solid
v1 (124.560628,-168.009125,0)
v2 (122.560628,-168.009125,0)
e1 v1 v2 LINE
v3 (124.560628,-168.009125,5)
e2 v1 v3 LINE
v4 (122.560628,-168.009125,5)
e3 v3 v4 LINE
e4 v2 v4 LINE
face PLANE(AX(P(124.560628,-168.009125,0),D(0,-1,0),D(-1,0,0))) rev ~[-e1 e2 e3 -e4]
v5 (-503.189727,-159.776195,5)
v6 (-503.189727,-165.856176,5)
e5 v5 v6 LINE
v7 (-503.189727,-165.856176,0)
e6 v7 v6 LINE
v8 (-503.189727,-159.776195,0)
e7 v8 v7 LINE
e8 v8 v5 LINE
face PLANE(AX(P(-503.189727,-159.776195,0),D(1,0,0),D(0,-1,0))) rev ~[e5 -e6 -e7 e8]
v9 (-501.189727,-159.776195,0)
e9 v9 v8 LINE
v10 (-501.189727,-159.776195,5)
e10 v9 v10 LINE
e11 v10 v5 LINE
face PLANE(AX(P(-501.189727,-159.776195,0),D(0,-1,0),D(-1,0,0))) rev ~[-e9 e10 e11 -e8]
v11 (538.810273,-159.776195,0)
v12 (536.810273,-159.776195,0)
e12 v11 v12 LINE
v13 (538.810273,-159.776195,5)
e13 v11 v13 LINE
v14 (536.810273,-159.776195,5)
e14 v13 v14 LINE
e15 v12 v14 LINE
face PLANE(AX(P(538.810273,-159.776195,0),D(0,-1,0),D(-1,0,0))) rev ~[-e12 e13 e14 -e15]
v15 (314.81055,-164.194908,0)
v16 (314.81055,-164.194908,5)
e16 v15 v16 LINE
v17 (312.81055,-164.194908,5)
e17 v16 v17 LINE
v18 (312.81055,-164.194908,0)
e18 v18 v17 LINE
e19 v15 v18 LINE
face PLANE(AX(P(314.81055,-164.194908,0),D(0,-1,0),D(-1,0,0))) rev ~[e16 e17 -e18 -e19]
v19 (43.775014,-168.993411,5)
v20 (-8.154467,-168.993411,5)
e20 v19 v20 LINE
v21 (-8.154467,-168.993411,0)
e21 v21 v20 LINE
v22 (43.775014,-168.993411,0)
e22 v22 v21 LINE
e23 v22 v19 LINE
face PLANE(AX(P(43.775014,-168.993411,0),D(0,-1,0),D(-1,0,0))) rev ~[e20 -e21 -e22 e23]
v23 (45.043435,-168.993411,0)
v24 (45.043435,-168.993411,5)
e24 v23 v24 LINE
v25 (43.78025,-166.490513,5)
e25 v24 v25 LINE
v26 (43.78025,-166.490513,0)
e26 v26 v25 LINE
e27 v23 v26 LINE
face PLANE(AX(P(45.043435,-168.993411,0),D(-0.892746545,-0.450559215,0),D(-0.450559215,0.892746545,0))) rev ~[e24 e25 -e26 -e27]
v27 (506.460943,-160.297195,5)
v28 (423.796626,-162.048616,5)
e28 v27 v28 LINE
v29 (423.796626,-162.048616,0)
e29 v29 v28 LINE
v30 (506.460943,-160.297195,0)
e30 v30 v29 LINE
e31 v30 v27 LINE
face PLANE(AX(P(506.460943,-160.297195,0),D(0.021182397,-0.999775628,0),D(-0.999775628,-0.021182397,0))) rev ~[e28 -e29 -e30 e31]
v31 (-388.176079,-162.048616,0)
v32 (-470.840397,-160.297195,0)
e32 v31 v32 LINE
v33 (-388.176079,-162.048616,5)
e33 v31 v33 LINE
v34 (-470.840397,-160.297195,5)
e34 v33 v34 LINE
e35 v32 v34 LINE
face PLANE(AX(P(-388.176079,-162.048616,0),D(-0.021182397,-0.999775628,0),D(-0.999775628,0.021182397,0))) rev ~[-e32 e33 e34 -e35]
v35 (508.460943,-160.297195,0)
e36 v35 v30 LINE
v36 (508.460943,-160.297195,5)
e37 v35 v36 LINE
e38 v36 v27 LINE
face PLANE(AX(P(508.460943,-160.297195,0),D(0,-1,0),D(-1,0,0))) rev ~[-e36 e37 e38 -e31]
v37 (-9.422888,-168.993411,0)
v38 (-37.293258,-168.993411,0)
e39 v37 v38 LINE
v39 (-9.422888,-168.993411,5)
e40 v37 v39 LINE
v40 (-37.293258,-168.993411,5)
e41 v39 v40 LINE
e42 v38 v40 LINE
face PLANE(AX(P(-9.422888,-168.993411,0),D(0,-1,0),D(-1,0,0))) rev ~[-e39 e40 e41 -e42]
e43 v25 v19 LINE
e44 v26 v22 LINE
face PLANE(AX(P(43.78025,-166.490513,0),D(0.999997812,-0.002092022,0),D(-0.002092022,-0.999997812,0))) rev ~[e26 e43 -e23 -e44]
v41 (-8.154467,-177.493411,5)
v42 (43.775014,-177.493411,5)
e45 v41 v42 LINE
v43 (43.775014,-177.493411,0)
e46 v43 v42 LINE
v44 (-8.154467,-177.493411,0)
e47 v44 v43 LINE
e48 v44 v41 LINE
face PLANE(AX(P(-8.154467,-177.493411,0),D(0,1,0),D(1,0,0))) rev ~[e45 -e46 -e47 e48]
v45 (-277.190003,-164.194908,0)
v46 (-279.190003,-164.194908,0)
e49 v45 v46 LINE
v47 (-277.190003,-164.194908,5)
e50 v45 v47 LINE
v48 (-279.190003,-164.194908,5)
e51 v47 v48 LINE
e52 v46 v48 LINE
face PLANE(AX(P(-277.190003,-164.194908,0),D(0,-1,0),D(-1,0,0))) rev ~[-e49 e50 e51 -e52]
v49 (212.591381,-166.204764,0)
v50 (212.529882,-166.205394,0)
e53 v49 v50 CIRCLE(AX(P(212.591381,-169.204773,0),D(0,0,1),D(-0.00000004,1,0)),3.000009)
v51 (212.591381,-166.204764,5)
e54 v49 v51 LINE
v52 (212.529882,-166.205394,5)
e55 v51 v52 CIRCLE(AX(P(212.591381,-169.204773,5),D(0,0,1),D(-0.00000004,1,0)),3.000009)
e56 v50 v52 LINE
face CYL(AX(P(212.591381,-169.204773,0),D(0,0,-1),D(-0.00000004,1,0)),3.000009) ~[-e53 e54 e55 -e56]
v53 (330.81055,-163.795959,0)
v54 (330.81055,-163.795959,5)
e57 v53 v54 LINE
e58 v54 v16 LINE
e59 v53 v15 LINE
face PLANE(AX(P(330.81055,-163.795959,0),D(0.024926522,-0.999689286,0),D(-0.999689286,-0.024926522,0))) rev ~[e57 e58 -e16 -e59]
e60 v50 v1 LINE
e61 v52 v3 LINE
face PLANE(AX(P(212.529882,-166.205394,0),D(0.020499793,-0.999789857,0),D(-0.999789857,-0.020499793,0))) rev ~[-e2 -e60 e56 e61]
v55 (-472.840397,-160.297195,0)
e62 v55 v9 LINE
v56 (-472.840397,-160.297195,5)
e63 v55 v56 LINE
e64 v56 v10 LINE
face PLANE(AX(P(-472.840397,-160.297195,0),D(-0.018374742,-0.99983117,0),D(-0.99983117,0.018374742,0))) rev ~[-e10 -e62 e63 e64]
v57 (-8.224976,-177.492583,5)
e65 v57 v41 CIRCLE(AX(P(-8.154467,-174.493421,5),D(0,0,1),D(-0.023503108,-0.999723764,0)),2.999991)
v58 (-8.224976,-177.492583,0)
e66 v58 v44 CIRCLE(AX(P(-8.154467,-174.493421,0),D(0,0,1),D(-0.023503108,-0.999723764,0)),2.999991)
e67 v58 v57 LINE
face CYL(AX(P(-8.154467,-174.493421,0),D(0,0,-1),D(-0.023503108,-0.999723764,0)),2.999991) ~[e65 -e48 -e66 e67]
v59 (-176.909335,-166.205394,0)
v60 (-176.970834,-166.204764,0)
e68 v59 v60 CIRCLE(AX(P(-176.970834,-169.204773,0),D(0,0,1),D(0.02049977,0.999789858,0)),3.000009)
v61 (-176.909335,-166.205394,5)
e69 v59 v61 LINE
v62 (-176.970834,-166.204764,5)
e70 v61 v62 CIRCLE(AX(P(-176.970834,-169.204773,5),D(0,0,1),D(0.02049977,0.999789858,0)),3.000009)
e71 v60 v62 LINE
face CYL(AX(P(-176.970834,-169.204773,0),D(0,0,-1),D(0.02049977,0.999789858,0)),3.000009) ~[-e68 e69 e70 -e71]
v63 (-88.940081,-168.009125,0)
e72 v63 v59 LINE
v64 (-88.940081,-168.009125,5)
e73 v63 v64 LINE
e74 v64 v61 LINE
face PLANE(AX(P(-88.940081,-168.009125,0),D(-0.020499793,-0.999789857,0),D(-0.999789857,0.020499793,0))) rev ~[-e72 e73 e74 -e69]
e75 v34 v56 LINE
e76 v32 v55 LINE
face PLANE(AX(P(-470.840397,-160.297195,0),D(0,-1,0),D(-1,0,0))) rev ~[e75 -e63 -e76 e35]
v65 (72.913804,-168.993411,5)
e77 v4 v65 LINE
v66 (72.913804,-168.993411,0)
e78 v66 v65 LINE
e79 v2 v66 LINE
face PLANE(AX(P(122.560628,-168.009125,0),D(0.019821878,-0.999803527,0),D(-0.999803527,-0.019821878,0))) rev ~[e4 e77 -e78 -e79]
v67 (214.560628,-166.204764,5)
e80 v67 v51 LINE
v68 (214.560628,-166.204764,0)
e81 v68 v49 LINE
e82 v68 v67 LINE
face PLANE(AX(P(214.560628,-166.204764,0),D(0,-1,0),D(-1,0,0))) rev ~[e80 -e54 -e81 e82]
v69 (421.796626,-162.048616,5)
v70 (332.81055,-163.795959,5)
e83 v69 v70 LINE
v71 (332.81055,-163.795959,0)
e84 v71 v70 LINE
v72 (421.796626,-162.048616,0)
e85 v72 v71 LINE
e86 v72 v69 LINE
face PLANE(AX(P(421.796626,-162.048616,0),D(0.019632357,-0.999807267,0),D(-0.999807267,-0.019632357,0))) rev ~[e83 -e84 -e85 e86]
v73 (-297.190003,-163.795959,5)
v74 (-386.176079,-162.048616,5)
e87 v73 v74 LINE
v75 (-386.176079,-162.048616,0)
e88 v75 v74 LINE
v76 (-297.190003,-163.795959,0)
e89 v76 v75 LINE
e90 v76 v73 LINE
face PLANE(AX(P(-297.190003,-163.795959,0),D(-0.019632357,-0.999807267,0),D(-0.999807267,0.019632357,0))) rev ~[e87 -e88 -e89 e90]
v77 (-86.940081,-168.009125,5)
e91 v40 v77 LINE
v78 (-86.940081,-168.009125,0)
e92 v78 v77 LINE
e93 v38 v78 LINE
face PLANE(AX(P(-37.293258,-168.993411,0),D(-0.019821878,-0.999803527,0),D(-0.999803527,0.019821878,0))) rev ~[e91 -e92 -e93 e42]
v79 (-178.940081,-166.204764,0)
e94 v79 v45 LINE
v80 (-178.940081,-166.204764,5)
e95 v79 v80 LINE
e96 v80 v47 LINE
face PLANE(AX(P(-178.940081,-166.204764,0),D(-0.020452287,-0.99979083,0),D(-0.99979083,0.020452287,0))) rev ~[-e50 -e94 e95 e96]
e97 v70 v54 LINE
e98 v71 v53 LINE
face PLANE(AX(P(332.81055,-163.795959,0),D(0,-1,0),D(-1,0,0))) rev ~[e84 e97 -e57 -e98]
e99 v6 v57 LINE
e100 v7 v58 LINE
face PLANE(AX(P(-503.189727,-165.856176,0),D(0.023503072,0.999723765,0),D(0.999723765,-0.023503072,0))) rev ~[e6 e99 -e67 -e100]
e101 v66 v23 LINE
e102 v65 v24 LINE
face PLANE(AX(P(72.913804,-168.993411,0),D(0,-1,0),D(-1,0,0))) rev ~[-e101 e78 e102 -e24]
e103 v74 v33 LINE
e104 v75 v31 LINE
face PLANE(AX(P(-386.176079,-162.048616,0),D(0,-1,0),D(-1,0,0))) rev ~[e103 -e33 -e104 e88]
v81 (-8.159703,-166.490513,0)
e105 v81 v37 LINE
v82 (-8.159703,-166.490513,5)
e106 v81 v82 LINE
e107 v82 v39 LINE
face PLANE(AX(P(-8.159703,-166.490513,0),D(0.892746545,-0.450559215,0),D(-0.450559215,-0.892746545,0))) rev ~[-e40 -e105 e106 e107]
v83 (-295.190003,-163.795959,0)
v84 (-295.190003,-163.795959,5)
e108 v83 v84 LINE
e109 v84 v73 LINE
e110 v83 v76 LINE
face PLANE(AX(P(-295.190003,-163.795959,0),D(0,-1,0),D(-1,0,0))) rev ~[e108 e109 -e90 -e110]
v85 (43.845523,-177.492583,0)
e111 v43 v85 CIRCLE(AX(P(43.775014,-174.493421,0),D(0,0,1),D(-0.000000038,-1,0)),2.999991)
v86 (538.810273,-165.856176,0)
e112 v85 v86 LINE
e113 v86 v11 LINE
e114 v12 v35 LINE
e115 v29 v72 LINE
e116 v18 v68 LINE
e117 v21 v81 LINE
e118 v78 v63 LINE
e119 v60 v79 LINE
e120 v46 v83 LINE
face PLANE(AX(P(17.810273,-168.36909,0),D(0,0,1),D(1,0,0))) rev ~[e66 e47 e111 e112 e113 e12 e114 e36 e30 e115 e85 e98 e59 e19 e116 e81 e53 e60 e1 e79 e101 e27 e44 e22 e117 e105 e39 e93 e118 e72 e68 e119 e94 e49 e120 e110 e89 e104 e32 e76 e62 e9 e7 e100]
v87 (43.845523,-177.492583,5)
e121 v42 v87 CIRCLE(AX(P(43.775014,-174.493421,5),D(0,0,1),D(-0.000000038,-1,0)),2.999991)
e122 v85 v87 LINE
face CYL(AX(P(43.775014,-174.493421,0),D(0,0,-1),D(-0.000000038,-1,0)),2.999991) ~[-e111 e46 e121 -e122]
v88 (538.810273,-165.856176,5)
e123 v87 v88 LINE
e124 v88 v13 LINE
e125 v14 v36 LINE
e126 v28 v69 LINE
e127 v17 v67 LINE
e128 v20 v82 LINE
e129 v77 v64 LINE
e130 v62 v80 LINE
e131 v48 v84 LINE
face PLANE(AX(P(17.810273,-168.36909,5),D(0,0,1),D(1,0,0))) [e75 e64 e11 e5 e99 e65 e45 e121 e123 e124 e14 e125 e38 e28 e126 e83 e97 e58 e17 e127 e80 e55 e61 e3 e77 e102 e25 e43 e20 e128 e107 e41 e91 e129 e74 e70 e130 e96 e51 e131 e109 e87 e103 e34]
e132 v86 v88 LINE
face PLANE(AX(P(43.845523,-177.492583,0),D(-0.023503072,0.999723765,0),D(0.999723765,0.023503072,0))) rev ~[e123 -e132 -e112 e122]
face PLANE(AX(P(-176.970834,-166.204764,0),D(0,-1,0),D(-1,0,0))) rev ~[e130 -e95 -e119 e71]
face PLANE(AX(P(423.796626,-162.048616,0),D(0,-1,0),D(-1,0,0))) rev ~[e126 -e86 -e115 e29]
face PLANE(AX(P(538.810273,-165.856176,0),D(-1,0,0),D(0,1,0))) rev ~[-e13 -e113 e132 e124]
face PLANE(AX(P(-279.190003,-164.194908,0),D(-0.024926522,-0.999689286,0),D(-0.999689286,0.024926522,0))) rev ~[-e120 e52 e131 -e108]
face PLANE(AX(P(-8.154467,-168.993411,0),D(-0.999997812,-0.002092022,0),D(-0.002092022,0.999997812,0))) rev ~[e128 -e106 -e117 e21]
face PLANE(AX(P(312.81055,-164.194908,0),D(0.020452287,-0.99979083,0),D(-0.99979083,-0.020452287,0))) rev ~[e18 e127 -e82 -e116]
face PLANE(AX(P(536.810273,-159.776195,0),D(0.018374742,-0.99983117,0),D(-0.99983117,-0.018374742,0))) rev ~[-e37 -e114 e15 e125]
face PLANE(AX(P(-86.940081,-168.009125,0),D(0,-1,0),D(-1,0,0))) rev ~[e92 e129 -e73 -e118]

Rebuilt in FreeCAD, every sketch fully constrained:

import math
import FreeCAD as App
import Part
import Sketcher
from FreeCAD import Vector
Q = App.Units.Quantity

doc = App.newDocument("Part")
body = doc.addObject("PartDesign::Body", "Body")

# Sketch on XY plane
sketch1 = body.newObject("Sketcher::SketchObject", "Sketch")
sketch1.AttachmentSupport = (doc.getObject("XY_Plane"), [""])
sketch1.MapMode = "FlatFace"
sketch1.addGeometry([
    Part.LineSegment(Vector(43.845523, -177.492583, 0), Vector(538.810273, -165.856176, 0)),  # 0
    Part.LineSegment(Vector(538.810273, -165.856176, 0), Vector(538.810273, -159.776195, 0)),  # 1
    Part.LineSegment(Vector(538.810273, -159.776195, 0), Vector(536.810273, -159.776195, 0)),  # 2
    Part.LineSegment(Vector(536.810273, -159.776195, 0), Vector(508.460943, -160.297195, 0)),  # 3
    Part.LineSegment(Vector(508.460943, -160.297195, 0), Vector(506.460943, -160.297195, 0)),  # 4
    Part.LineSegment(Vector(506.460943, -160.297195, 0), Vector(423.796626, -162.048616, 0)),  # 5
    Part.LineSegment(Vector(423.796626, -162.048616, 0), Vector(421.796626, -162.048616, 0)),  # 6
    Part.LineSegment(Vector(421.796626, -162.048616, 0), Vector(332.81055, -163.795959, 0)),  # 7
    Part.LineSegment(Vector(332.81055, -163.795959, 0), Vector(330.81055, -163.795959, 0)),  # 8
    Part.LineSegment(Vector(330.81055, -163.795959, 0), Vector(314.81055, -164.194908, 0)),  # 9
    Part.LineSegment(Vector(314.81055, -164.194908, 0), Vector(312.81055, -164.194908, 0)),  # 10
    Part.LineSegment(Vector(312.81055, -164.194908, 0), Vector(214.560628, -166.204764, 0)),  # 11
    Part.LineSegment(Vector(214.560628, -166.204764, 0), Vector(212.591381, -166.204764, 0)),  # 12
    Part.ArcOfCircle(Part.Circle(Vector(212.591381, -169.204773, 0), Vector(0, 0, 1), 3.000009), math.radians(90.000002), math.radians(91.174633)),  # 13
    Part.LineSegment(Vector(212.529882, -166.205394, 0), Vector(124.560628, -168.009125, 0)),  # 14
    Part.LineSegment(Vector(124.560628, -168.009125, 0), Vector(122.560628, -168.009125, 0)),  # 15
    Part.LineSegment(Vector(122.560628, -168.009125, 0), Vector(72.913804, -168.993411, 0)),  # 16
    Part.LineSegment(Vector(72.913804, -168.993411, 0), Vector(45.043435, -168.993411, 0)),  # 17
    Part.LineSegment(Vector(45.043435, -168.993411, 0), Vector(43.78025, -166.490513, 0)),  # 18
    Part.LineSegment(Vector(43.78025, -166.490513, 0), Vector(43.775014, -168.993411, 0)),  # 19
    Part.LineSegment(Vector(43.775014, -168.993411, 0), Vector(-8.154467, -168.993411, 0)),  # 20
    Part.LineSegment(Vector(-8.154467, -168.993411, 0), Vector(-8.159703, -166.490513, 0)),  # 21
    Part.LineSegment(Vector(-8.159703, -166.490513, 0), Vector(-9.422888, -168.993411, 0)),  # 22
    Part.LineSegment(Vector(-9.422888, -168.993411, 0), Vector(-37.293258, -168.993411, 0)),  # 23
    Part.LineSegment(Vector(-37.293258, -168.993411, 0), Vector(-86.940081, -168.009125, 0)),  # 24
    Part.LineSegment(Vector(-86.940081, -168.009125, 0), Vector(-88.940081, -168.009125, 0)),  # 25
    Part.LineSegment(Vector(-88.940081, -168.009125, 0), Vector(-176.909335, -166.205394, 0)),  # 26
    Part.ArcOfCircle(Part.Circle(Vector(-176.970834, -169.204773, 0), Vector(0, 0, 1), 3.000009), math.radians(88.825367), math.radians(89.999998)),  # 27
    Part.LineSegment(Vector(-176.970834, -166.204764, 0), Vector(-178.940081, -166.204764, 0)),  # 28
    Part.LineSegment(Vector(-178.940081, -166.204764, 0), Vector(-277.190003, -164.194908, 0)),  # 29
    Part.LineSegment(Vector(-277.190003, -164.194908, 0), Vector(-279.190003, -164.194908, 0)),  # 30
    Part.LineSegment(Vector(-279.190003, -164.194908, 0), Vector(-295.190003, -163.795959, 0)),  # 31
    Part.LineSegment(Vector(-295.190003, -163.795959, 0), Vector(-297.190003, -163.795959, 0)),  # 32
    Part.LineSegment(Vector(-297.190003, -163.795959, 0), Vector(-386.176079, -162.048616, 0)),  # 33
    Part.LineSegment(Vector(-386.176079, -162.048616, 0), Vector(-388.176079, -162.048616, 0)),  # 34
    Part.LineSegment(Vector(-388.176079, -162.048616, 0), Vector(-470.840397, -160.297195, 0)),  # 35
    Part.LineSegment(Vector(-470.840397, -160.297195, 0), Vector(-472.840397, -160.297195, 0)),  # 36
    Part.LineSegment(Vector(-472.840397, -160.297195, 0), Vector(-501.189727, -159.776195, 0)),  # 37
    Part.LineSegment(Vector(-501.189727, -159.776195, 0), Vector(-503.189727, -159.776195, 0)),  # 38
    Part.LineSegment(Vector(-503.189727, -159.776195, 0), Vector(-503.189727, -165.856176, 0)),  # 39
    Part.LineSegment(Vector(-503.189727, -165.856176, 0), Vector(-8.224976, -177.492583, 0)),  # 40
    Part.ArcOfCircle(Part.Circle(Vector(-8.154467, -174.493421, 0), Vector(0, 0, 1), 2.999991), math.radians(-91.346753), math.radians(-89.999998)),  # 41
    Part.LineSegment(Vector(-8.154467, -177.493411, 0), Vector(43.775014, -177.493411, 0)),  # 42
    Part.ArcOfCircle(Part.Circle(Vector(43.775014, -174.493421, 0), Vector(0, 0, 1), 2.999991), math.radians(-90.000002), math.radians(-88.653247)),  # 43
], False)
sketch1.addConstraint([
    Sketcher.Constraint("Coincident", 0, 2, 1, 1),
    Sketcher.Constraint("Coincident", 1, 2, 2, 1),
    Sketcher.Constraint("Coincident", 2, 2, 3, 1),
    Sketcher.Constraint("Coincident", 3, 2, 4, 1),
    Sketcher.Constraint("Coincident", 4, 2, 5, 1),
    Sketcher.Constraint("Coincident", 5, 2, 6, 1),
    Sketcher.Constraint("Coincident", 6, 2, 7, 1),
    Sketcher.Constraint("Coincident", 7, 2, 8, 1),
    Sketcher.Constraint("Coincident", 8, 2, 9, 1),
    Sketcher.Constraint("Coincident", 9, 2, 10, 1),
    Sketcher.Constraint("Coincident", 10, 2, 11, 1),
    Sketcher.Constraint("Coincident", 11, 2, 12, 1),
    Sketcher.Constraint("Tangent", 12, 2, 13, 1),
    Sketcher.Constraint("Tangent", 13, 2, 14, 1),
    Sketcher.Constraint("Coincident", 14, 2, 15, 1),
    Sketcher.Constraint("Coincident", 15, 2, 16, 1),
    Sketcher.Constraint("Coincident", 16, 2, 17, 1),
    Sketcher.Constraint("Coincident", 17, 2, 18, 1),
    Sketcher.Constraint("Coincident", 18, 2, 19, 1),
    Sketcher.Constraint("Coincident", 19, 2, 20, 1),
    Sketcher.Constraint("Coincident", 20, 2, 21, 1),
    Sketcher.Constraint("Coincident", 21, 2, 22, 1),
    Sketcher.Constraint("Coincident", 22, 2, 23, 1),
    Sketcher.Constraint("Coincident", 23, 2, 24, 1),
    Sketcher.Constraint("Coincident", 24, 2, 25, 1),
    Sketcher.Constraint("Coincident", 25, 2, 26, 1),
    Sketcher.Constraint("Tangent", 26, 2, 27, 1),
    Sketcher.Constraint("Tangent", 27, 2, 28, 1),
    Sketcher.Constraint("Coincident", 28, 2, 29, 1),
    Sketcher.Constraint("Coincident", 29, 2, 30, 1),
    Sketcher.Constraint("Coincident", 30, 2, 31, 1),
    Sketcher.Constraint("Coincident", 31, 2, 32, 1),
    Sketcher.Constraint("Coincident", 32, 2, 33, 1),
    Sketcher.Constraint("Coincident", 33, 2, 34, 1),
    Sketcher.Constraint("Coincident", 34, 2, 35, 1),
    Sketcher.Constraint("Coincident", 35, 2, 36, 1),
    Sketcher.Constraint("Coincident", 36, 2, 37, 1),
    Sketcher.Constraint("Coincident", 37, 2, 38, 1),
    Sketcher.Constraint("Coincident", 38, 2, 39, 1),
    Sketcher.Constraint("Coincident", 39, 2, 40, 1),
    Sketcher.Constraint("Tangent", 40, 2, 41, 1),
    Sketcher.Constraint("Tangent", 41, 2, 42, 1),
    Sketcher.Constraint("Tangent", 42, 2, 43, 1),
    Sketcher.Constraint("Tangent", 43, 2, 0, 1),
    Sketcher.Constraint("Vertical", 1),
    Sketcher.Constraint("Horizontal", 2),
    Sketcher.Constraint("Horizontal", 4),
    Sketcher.Constraint("Horizontal", 6),
    Sketcher.Constraint("Horizontal", 8),
    Sketcher.Constraint("Horizontal", 10),
    Sketcher.Constraint("Horizontal", 12),
    Sketcher.Constraint("Horizontal", 15),
    Sketcher.Constraint("Horizontal", 17),
    Sketcher.Constraint("Horizontal", 20),
    Sketcher.Constraint("Horizontal", 23),
    Sketcher.Constraint("Horizontal", 25),
    Sketcher.Constraint("Horizontal", 28),
    Sketcher.Constraint("Horizontal", 30),
    Sketcher.Constraint("Horizontal", 32),
    Sketcher.Constraint("Horizontal", 34),
    Sketcher.Constraint("Horizontal", 36),
    Sketcher.Constraint("Horizontal", 38),
    Sketcher.Constraint("Vertical", 39),
    Sketcher.Constraint("Horizontal", 42),
    Sketcher.Constraint("Equal", 13, 27),
    Sketcher.Constraint("Equal", 41, 43),
    Sketcher.Constraint("Horizontal", 13, 3, 27, 3),
    Sketcher.Constraint("Horizontal", 17, 2, 19, 2),
    Sketcher.Constraint("Horizontal", 18, 2, 21, 2),
    Sketcher.Constraint("Horizontal", 20, 2, 22, 2),
    Sketcher.Constraint("Horizontal", 15, 2, 24, 2),
    Sketcher.Constraint("Horizontal", 10, 2, 29, 2),
    Sketcher.Constraint("Horizontal", 8, 2, 31, 2),
    Sketcher.Constraint("Horizontal", 6, 2, 33, 2),
    Sketcher.Constraint("Horizontal", 4, 2, 35, 2),
    Sketcher.Constraint("Horizontal", 2, 2, 37, 2),
    Sketcher.Constraint("Horizontal", 0, 2, 39, 2),
    Sketcher.Constraint("Vertical", 43, 3, 19, 2),
    Sketcher.Constraint("Vertical", 41, 3, 20, 2),
    Sketcher.Constraint("Equal", 2, 4),
    Sketcher.Constraint("Equal", 4, 6),
    Sketcher.Constraint("Equal", 6, 8),
    Sketcher.Constraint("Equal", 8, 10),
    Sketcher.Constraint("Equal", 10, 15),
    Sketcher.Constraint("Equal", 17, 23),
    Sketcher.Constraint("Equal", 15, 25),
    Sketcher.Constraint("Equal", 12, 28),
    Sketcher.Constraint("Equal", 25, 30),
    Sketcher.Constraint("Equal", 30, 32),
    Sketcher.Constraint("Equal", 32, 34),
    Sketcher.Constraint("Equal", 34, 36),
    Sketcher.Constraint("Equal", 36, 38),
    Sketcher.Constraint("Equal", 18, 22),
    Sketcher.Constraint("Equal", 16, 24),
    Sketcher.Constraint("Equal", 14, 26),
    Sketcher.Constraint("Equal", 11, 29),
    Sketcher.Constraint("Equal", 9, 31),
    Sketcher.Constraint("Equal", 7, 33),
    Sketcher.Constraint("Equal", 5, 35),
    Sketcher.Constraint("Equal", 3, 37),
    Sketcher.Constraint("Equal", 0, 40),
    Sketcher.Constraint("DistanceX", 2, 2, 2, 1, Q("2 mm")),
    Sketcher.Constraint("DistanceX", 9, 2, 8, 2, Q("16 mm")),
    Sketcher.Constraint("DistanceX", 14, 2, 11, 2, Q("90 mm")),
    Sketcher.Constraint("DistanceY", 41, 2, 20, 2, Q("8.5 mm")),
    Sketcher.Constraint("Radius", 13, Q("3.000009 mm")),
    Sketcher.Constraint("Radius", 41, Q("2.999991 mm")),
    Sketcher.Constraint("DistanceY", 3, 2, 2, 2, Q("0.521 mm")),
    Sketcher.Constraint("DistanceX", 17, 2, 17, 1, Q("27.870369 mm")),
    Sketcher.Constraint("DistanceX", 20, 2, 20, 1, Q("51.929481 mm")),
    Sketcher.Constraint("DistanceY", 1, 1, 1, 2, Q("6.079981 mm")),
    Sketcher.Constraint("DistanceX", 13, 2, 12, 2, Q("0.061499 mm")),
    Sketcher.Constraint("DistanceY", 17, 2, 18, 2, Q("2.502899 mm")),
    Sketcher.Constraint("Distance", 5, Q("82.68287 mm")),
    Sketcher.Constraint("Distance", 7, Q("89.00323 mm")),
    Sketcher.Constraint("Distance", 16, Q("49.65658 mm")),
    Sketcher.Constraint("DistanceX", 12, 2, 12, 1, Q("1.969247 mm")),
    Sketcher.Constraint("DistanceX", -1, 1, 13, 3, Q("212.591381 mm")),
    Sketcher.Constraint("DistanceY", 41, 3, -1, 1, Q("174.493421 mm")),
    Sketcher.Constraint("DistanceX", -1, 1, 7, 2, Q("332.81055 mm")),
    Sketcher.Constraint("DistanceY", 7, 2, -1, 1, Q("163.795959 mm")),
    Sketcher.Constraint("DistanceX", -1, 1, 18, 2, Q("43.78025 mm")),
    Sketcher.Constraint("DistanceX", 22, 2, -1, 1, Q("9.422888 mm")),
    Sketcher.Constraint("DistanceX", 24, 2, -1, 1, Q("86.940081 mm")),
    Sketcher.Constraint("DistanceX", 33, 2, -1, 1, Q("386.176079 mm")),
    Sketcher.Constraint("DistanceX", 43, 3, 0, 2, Q("495.035259 mm")),
    Sketcher.Constraint("DistanceX", 3, 2, 2, 2, Q("28.34933 mm")),
    Sketcher.Constraint("DistanceY", 9, 2, 8, 2, Q("0.398948 mm")),
])
pad1 = body.newObject("PartDesign::Pad", "Pad")
pad1.Profile = sketch1
pad1.Length = 5

doc.recompute()
